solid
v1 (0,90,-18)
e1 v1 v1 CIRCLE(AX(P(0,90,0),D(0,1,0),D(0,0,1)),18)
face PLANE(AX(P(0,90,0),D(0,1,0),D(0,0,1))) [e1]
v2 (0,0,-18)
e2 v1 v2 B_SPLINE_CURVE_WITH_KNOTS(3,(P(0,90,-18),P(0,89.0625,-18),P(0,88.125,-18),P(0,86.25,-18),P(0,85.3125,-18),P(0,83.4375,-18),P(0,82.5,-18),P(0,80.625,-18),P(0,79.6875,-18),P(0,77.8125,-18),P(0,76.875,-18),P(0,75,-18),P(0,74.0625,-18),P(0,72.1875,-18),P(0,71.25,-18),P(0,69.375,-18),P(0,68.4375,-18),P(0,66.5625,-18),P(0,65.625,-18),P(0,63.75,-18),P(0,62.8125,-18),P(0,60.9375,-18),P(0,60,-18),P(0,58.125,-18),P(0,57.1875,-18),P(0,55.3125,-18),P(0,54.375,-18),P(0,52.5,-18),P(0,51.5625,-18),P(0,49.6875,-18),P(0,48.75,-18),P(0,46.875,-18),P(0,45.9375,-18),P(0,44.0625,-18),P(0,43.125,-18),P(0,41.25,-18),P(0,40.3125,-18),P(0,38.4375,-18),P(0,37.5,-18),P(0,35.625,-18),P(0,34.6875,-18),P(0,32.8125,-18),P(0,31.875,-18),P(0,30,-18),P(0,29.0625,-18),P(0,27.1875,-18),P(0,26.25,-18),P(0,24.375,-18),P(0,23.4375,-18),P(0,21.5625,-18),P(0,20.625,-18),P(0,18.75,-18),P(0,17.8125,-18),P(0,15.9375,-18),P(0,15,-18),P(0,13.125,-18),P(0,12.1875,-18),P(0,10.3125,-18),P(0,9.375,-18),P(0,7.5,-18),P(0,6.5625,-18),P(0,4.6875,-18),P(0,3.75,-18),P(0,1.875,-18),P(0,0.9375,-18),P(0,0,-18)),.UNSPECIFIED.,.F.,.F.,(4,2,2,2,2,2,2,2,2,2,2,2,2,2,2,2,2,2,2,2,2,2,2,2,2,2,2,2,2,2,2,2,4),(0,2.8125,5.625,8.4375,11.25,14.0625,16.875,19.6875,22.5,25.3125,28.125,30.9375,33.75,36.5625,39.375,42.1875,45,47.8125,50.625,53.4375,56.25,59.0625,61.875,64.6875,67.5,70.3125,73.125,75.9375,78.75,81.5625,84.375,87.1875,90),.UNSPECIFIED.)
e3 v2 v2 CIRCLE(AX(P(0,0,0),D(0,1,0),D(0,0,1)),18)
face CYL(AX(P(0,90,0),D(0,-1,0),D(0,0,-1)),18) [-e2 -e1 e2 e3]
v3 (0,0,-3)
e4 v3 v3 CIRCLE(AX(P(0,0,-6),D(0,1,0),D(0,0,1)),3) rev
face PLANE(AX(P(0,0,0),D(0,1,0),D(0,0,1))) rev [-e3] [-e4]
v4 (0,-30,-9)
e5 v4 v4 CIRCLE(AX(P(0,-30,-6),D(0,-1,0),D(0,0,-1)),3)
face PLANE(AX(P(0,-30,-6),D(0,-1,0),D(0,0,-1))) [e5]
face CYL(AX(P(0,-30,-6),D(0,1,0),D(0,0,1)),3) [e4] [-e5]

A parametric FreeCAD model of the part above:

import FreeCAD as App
import Part
import Sketcher

doc = App.newDocument("Part")
body = doc.addObject("PartDesign::Body", "Body")

sketch1 = body.newObject("Sketcher::SketchObject", "Sketch")
sketch1.AttachmentSupport = (doc.getObject("XZ_Plane"), [""])
sketch1.MapMode = "FlatFace"
sketch1.addGeometry(Part.Circle(App.Vector(0, 0, 0), App.Vector(0, 0, 1), 18), False)
sketch1.addConstraint([
    Sketcher.Constraint("Coincident", 0, 3, -1, 1),
    Sketcher.Constraint("Diameter", 0, 36.0),
])
pad1 = body.newObject("PartDesign::Pad", "Pad")
pad1.Profile = sketch1
pad1.Length = 90
pad1.Reversed = True

sketch2 = body.newObject("Sketcher::SketchObject", "Sketch001")
sketch2.AttachmentSupport = (doc.getObject("XZ_Plane"), [""])
sketch2.MapMode = "FlatFace"
sketch2.addGeometry(Part.Circle(App.Vector(0, -6, 0), App.Vector(0, 0, 1), 3), False)
sketch2.addConstraint([
    Sketcher.Constraint("PointOnObject", 0, 3, -2),
    Sketcher.Constraint("Diameter", 0, 6.0),
    Sketcher.Constraint("DistanceY", 0, 3, -1, 1, 6.0),
])
pad2 = body.newObject("PartDesign::Pad", "Pad001")
pad2.Profile = sketch2
pad2.Length = 30

doc.recompute()
